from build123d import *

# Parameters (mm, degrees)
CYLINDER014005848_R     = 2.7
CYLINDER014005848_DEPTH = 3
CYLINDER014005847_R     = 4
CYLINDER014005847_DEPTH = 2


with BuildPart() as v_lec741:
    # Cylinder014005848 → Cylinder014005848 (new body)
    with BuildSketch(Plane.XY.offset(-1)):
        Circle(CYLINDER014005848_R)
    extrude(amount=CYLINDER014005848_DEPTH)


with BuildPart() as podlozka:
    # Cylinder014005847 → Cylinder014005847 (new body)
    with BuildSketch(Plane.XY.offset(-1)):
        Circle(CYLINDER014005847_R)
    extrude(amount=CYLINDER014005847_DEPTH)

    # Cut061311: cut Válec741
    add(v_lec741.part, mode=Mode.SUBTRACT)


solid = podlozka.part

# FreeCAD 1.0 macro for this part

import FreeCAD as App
import Part
import Sketcher
from FreeCAD import Vector
Q = App.Units.Quantity

doc = App.newDocument("Part")
body = doc.addObject("PartDesign::Body", "Body")

# Sketch on XY plane
sketch1 = body.newObject("Sketcher::SketchObject", "Sketch")
sketch1.AttachmentSupport = (doc.getObject("XY_Plane"), [""])
sketch1.MapMode = "FlatFace"
sketch1.AttachmentOffset = App.Placement(Vector(0, 0, -1), App.Rotation())
sketch1.addGeometry(Part.Circle(Vector(0, 0, 0), Vector(0, 0, 1), 2.7), False)
sketch1.addConstraint([
    Sketcher.Constraint("Coincident", 0, 3, -1, 1),
    Sketcher.Constraint("Diameter", 0, Q("5.4 mm")),
])
pad1 = body.newObject("PartDesign::Pad", "Pad")
pad1.Profile = sketch1
pad1.Length = 3
body2 = doc.addObject("PartDesign::Body", "Body001")

# Sketch on XY plane
sketch2 = body2.newObject("Sketcher::SketchObject", "Sketch001")
sketch2.AttachmentSupport = (doc.getObject("XY_Plane001"), [""])
sketch2.MapMode = "FlatFace"
sketch2.AttachmentOffset = App.Placement(Vector(0, 0, -1), App.Rotation())
sketch2.addGeometry(Part.Circle(Vector(0, 0, 0), Vector(0, 0, 1), 4), False)
sketch2.addConstraint([
    Sketcher.Constraint("Coincident", 0, 3, -1, 1),
    Sketcher.Constraint("Diameter", 0, Q("8 mm")),
])
pad2 = body2.newObject("PartDesign::Pad", "Pad001")
pad2.Profile = sketch2
pad2.Length = 2
doc.recompute()

boolean = body2.newObject("PartDesign::Boolean", "Boolean")
boolean.Type = "Cut"
boolean.addObjects([body])

doc.recompute()
